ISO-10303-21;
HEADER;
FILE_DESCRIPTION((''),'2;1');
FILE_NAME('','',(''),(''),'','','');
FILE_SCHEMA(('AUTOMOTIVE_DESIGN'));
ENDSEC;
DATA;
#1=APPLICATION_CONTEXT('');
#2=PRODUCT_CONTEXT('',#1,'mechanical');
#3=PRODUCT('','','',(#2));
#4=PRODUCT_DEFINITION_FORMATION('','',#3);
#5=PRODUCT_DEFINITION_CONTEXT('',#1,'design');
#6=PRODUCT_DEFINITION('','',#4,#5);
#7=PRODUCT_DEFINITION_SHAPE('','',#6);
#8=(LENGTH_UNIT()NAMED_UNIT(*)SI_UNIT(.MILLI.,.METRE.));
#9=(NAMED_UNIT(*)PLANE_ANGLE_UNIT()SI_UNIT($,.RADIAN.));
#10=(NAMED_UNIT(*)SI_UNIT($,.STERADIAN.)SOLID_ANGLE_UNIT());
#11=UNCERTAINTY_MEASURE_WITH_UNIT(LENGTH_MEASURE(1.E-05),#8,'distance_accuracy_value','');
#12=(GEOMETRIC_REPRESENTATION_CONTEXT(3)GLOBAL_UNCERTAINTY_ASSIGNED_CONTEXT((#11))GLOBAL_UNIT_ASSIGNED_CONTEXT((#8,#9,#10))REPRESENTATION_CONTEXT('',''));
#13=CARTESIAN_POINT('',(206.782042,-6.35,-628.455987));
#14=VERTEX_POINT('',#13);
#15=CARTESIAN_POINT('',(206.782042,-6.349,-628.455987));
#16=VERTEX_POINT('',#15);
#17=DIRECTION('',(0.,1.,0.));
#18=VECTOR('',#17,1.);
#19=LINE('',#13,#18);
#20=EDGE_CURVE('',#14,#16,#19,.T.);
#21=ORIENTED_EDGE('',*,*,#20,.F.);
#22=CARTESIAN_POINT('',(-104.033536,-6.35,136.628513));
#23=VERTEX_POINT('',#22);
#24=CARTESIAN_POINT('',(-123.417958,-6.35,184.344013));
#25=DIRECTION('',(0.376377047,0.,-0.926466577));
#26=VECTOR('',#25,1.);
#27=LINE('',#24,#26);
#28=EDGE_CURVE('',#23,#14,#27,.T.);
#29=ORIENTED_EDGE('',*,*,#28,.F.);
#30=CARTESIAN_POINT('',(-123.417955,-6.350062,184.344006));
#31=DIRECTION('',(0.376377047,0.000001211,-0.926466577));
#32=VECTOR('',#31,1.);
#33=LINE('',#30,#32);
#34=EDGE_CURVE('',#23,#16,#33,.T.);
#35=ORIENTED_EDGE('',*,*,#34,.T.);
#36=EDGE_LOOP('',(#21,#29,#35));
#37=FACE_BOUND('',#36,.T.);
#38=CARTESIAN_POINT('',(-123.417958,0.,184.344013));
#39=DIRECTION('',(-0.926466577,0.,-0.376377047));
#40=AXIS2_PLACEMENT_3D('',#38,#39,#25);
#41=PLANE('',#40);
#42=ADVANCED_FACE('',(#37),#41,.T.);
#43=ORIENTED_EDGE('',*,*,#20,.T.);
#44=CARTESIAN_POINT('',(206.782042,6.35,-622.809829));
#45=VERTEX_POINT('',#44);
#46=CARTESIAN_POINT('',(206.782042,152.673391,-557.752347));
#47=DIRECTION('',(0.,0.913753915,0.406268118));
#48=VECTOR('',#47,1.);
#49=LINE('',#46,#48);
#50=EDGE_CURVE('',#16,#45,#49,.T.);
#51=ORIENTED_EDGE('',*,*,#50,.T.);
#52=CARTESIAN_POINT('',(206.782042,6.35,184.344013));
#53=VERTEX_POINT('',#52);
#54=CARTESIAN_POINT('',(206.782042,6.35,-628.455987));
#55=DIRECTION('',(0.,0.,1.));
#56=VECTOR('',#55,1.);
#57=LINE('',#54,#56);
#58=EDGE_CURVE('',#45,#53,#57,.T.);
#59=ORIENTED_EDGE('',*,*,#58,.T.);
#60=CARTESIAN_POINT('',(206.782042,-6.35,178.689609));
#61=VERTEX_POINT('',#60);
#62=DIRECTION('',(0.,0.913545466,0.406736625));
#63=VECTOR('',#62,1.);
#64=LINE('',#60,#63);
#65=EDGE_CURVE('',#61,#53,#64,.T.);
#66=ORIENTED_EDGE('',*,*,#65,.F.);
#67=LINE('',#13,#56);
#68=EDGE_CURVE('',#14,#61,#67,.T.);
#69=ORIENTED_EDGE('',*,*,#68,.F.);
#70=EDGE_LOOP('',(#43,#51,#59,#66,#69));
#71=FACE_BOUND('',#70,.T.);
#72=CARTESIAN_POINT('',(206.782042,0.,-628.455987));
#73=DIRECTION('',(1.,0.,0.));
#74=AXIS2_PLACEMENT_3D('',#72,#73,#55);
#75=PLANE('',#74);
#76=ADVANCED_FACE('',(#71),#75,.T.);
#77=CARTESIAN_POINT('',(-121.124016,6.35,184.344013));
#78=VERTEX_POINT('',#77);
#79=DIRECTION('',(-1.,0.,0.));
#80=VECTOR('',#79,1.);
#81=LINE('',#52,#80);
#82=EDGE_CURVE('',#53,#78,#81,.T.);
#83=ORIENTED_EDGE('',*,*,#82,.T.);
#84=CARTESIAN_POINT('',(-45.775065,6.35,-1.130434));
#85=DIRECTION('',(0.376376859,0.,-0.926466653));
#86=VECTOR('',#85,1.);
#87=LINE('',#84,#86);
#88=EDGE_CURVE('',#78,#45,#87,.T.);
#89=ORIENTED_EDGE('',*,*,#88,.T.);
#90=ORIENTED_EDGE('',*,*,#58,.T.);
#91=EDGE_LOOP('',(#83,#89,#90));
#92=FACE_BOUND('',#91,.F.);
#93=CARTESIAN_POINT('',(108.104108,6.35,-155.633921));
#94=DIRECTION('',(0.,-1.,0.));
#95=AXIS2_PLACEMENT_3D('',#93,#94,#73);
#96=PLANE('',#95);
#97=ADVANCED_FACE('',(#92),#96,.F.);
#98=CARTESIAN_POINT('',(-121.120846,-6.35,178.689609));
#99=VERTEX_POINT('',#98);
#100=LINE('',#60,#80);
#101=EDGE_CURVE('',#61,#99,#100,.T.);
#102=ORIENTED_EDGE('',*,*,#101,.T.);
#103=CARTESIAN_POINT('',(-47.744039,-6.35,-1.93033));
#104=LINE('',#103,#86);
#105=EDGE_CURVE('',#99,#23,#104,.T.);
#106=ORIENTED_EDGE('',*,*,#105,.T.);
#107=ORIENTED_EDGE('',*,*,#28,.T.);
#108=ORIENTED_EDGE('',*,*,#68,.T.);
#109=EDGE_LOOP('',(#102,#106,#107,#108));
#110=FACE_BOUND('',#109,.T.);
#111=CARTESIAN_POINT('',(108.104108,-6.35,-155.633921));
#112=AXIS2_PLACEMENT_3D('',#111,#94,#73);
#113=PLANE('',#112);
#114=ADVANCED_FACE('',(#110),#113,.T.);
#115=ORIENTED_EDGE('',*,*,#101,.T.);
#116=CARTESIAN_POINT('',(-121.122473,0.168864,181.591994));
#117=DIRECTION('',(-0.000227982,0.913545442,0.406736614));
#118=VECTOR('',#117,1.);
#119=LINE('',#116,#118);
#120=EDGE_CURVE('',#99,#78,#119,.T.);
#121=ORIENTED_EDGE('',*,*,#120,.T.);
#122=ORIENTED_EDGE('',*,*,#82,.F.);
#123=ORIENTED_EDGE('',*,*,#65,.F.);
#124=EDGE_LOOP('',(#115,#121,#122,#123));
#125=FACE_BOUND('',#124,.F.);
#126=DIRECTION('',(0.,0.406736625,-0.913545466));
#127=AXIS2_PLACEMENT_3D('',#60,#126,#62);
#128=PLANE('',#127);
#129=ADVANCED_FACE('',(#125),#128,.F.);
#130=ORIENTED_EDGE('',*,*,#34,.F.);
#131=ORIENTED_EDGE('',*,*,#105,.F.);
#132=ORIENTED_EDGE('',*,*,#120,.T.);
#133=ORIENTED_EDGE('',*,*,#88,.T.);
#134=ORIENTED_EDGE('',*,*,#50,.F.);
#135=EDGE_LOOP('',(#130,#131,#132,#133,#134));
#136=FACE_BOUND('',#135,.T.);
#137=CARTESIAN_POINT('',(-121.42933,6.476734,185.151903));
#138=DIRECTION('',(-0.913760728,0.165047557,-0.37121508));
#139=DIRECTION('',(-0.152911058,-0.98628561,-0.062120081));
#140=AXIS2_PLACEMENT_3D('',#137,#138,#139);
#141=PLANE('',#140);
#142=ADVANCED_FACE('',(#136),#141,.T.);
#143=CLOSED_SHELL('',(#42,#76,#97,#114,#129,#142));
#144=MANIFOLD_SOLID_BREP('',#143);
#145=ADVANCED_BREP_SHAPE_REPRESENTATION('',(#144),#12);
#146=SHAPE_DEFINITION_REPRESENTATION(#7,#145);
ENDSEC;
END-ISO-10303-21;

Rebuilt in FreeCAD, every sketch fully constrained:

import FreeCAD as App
import Part
import Sketcher
Q = App.Units.Quantity


def add_polygon(sketch, points):
    """Adds a closed chain of lines whose ends are joined by coincident constraints."""
    first, n = sketch.GeometryCount, len(points)
    for a, b in zip(points, points[1:] + points[:1]):
        sketch.addGeometry(Part.LineSegment(App.Vector(*a, 0), App.Vector(*b, 0)), False)
    for i in range(n):
        sketch.addConstraint(Sketcher.Constraint("Coincident", first + i, 2, first + (i + 1) % n, 1))

doc = App.newDocument("Part")
body = doc.addObject("PartDesign::Body", "Body")

# Sketch on XZ plane
sketch1 = body.newObject("Sketcher::SketchObject", "Sketch")
sketch1.AttachmentSupport = (doc.getObject("XZ_Plane"), [""])
sketch1.MapMode = "FlatFace"
add_polygon(sketch1, [(206.782042, 184.344013), (-123.417958, 184.344013), (206.782042, -628.455987)])  # lines 0-2
sketch1.addConstraint([
    Sketcher.Constraint("Horizontal", 0),
    Sketcher.Constraint("Vertical", 2),
    Sketcher.Constraint("DistanceX", 0, 2, 0, 1, Q("13 in")),
    Sketcher.Constraint("DistanceY", 2, 1, 2, 2, Q("32 in")),
    Sketcher.Constraint("DistanceX", 0, 2, -1, 1, 123.417958),
    Sketcher.Constraint("DistanceY", -1, 1, 0, 2, 184.344013),
])
pad1 = body.newObject("PartDesign::Pad", "Pad")
pad1.Profile = sketch1
pad1.Length = Q("0.5 in")
pad1.Midplane = True

# Sketch on YZ plane
sketch2 = body.newObject("Sketcher::SketchObject", "Sketch001")
sketch2.AttachmentSupport = (doc.getObject("YZ_Plane"), [""])
sketch2.MapMode = "FlatFace"
sketch2.AttachmentOffset = App.Placement(App.Vector(0, 0, 206.782042), App.Rotation())
add_polygon(sketch2, [(-6.35, 178.689609), (6.35, 184.344013), (-6.35, 184.344013)])  # lines 0-2
sketch2.addConstraint([
    Sketcher.Constraint("Horizontal", 1),
    Sketcher.Constraint("Vertical", 2),
    Sketcher.Constraint("DistanceX", 1, 2, 1, 1, Q("0.5 in")),
    Sketcher.Constraint("Angle", 0, Q("23.999999 deg")),
    Sketcher.Constraint("DistanceX", -1, 1, 0, 2, Q("0.25 in")),
    Sketcher.Constraint("DistanceY", -1, 1, 2, 2, 178.689609),
])
pocket1 = body.newObject("PartDesign::Pocket", "Pocket")
pocket1.Profile = sketch2
pocket1.Type = "ThroughAll"

# Sketch on an angled plane
sketch3 = body.newObject("Sketcher::SketchObject", "Sketch002")
sketch3.Placement = App.Placement(App.Vector(-81.764245, 0, 201.265834), App.Rotation(App.Vector(0.926466653, 0, 0.376376859), App.Vector(0, -0.999999999, 0), App.Vector(0.376376859, 0, -0.926466653), "ZXY"))
add_polygon(sketch3, [(-44.959792, 6.350266), (-44.959792, -6.476734), (-42.813289, -6.476734)])  # lines 0-2
sketch3.addConstraint([
    Sketcher.Constraint("Vertical", 0),
    Sketcher.Constraint("Horizontal", 1),
    Sketcher.Constraint("Angle", 2, Q("99.499997 deg")),
    Sketcher.Constraint("DistanceY", 0, 2, 0, 1, Q("0.505 in")),
    Sketcher.Constraint("DistanceX", 0, 2, -1, 1, 44.959792),
    Sketcher.Constraint("DistanceY", 0, 2, -1, 1, 6.476734),
])
pocket2 = body.newObject("PartDesign::Pocket", "Pocket001")
pocket2.Profile = sketch3
pocket2.Type = "ThroughAll"
pocket2.Reversed = True

doc.recompute()
